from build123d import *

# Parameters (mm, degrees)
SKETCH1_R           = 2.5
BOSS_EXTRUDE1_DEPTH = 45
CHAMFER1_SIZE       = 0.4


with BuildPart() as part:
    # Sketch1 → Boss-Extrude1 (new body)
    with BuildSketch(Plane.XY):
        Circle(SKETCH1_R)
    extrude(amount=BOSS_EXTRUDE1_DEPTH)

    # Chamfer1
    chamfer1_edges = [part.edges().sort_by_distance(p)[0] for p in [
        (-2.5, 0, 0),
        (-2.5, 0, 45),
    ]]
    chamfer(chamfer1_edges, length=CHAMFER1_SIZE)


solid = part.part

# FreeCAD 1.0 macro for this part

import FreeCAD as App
import Part
import Sketcher
from FreeCAD import Vector
Q = App.Units.Quantity


def edges_at(feature, points):
    """Names of the edges that pass closest to the given points."""
    edges = feature.Shape.Edges
    near = lambda p: min(range(len(edges)), key=lambda i: edges[i].distToShape(Part.Vertex(*p))[0])
    return sorted({f"Edge{near(p) + 1}" for p in points})

doc = App.newDocument("Part")
body = doc.addObject("PartDesign::Body", "Body")

sketch1 = body.newObject("Sketcher::SketchObject", "Sketch")
sketch1.AttachmentSupport = (doc.getObject("XY_Plane"), [""])
sketch1.MapMode = "FlatFace"
sketch1.addGeometry(Part.Circle(Vector(0, 0, 0), Vector(0, 0, 1), 2.5), False)
sketch1.addConstraint(Sketcher.Constraint("Coincident", 0, 3, -1, 1))
sketch1.addConstraint(Sketcher.Constraint("Diameter", 0, Q("5 mm")))
pad1 = body.newObject("PartDesign::Pad", "Pad")
pad1.Profile = sketch1
pad1.Length = 45
doc.recompute()

chamfer = body.newObject("PartDesign::Chamfer", "Chamfer")
chamfer.Base = (pad1, edges_at(pad1, [(-2.5, 0, 0), (-2.5, 0, 45)]))
chamfer.Size = 0.4

doc.recompute()
